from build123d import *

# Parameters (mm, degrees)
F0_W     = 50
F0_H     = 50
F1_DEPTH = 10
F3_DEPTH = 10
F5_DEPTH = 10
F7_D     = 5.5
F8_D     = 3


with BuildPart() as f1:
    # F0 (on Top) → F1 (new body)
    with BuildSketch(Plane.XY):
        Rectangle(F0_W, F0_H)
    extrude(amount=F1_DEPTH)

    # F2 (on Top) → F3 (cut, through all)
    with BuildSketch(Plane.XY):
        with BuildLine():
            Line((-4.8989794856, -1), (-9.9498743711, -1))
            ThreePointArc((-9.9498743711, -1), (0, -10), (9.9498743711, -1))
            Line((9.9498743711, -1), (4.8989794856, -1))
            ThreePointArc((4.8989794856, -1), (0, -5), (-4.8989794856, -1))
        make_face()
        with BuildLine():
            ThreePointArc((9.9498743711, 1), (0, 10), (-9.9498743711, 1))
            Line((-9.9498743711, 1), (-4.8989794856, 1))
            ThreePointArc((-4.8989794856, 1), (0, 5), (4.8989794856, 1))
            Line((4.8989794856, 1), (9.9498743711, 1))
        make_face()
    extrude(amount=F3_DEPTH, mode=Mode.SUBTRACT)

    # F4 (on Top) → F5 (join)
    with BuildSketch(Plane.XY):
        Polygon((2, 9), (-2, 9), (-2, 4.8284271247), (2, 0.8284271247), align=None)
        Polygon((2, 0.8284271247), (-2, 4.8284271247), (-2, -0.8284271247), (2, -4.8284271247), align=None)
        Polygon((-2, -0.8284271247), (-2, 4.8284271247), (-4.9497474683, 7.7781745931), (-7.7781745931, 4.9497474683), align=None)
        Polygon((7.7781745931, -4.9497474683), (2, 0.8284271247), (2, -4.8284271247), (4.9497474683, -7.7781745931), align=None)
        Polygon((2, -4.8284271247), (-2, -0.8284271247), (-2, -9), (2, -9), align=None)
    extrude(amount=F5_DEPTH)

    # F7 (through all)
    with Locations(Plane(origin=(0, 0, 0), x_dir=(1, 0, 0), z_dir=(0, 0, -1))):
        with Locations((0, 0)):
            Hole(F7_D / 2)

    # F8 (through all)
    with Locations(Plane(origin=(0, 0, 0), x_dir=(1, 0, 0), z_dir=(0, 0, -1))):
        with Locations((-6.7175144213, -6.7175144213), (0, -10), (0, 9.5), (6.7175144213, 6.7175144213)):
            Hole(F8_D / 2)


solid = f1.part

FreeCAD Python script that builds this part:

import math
import FreeCAD as App
import Part
import Sketcher
Q = App.Units.Quantity

doc = App.newDocument("Part")
body = doc.addObject("PartDesign::Body", "Body")

# Sketch on XY plane
sketch1 = body.newObject("Sketcher::SketchObject", "Sketch")
sketch1.AttachmentSupport = (doc.getObject("XY_Plane"), [""])
sketch1.MapMode = "FlatFace"
sketch1.addGeometry(Part.LineSegment(App.Vector(-25, 25, 0), App.Vector(-25, -25, 0)), False)
sketch1.addGeometry(Part.LineSegment(App.Vector(-25, -25, 0), App.Vector(25, -25, 0)), False)
sketch1.addGeometry(Part.LineSegment(App.Vector(25, -25, 0), App.Vector(25, 25, 0)), False)
sketch1.addGeometry(Part.LineSegment(App.Vector(25, 25, 0), App.Vector(-25, 25, 0)), False)
sketch1.addConstraint(Sketcher.Constraint("Coincident", 0, 2, 1, 1))
sketch1.addConstraint(Sketcher.Constraint("Coincident", 1, 2, 2, 1))
sketch1.addConstraint(Sketcher.Constraint("Coincident", 2, 2, 3, 1))
sketch1.addConstraint(Sketcher.Constraint("Coincident", 3, 2, 0, 1))
sketch1.addConstraint(Sketcher.Constraint("Vertical", 0))
sketch1.addConstraint(Sketcher.Constraint("Horizontal", 1))
sketch1.addConstraint(Sketcher.Constraint("Vertical", 2))
sketch1.addConstraint(Sketcher.Constraint("Horizontal", 3))
sketch1.addConstraint(Sketcher.Constraint("Symmetric", 0, 2, 2, 2, -1, 1))
sketch1.addConstraint(Sketcher.Constraint("Equal", 3, 0))
sketch1.addConstraint(Sketcher.Constraint("DistanceX", 1, 1, 1, 2, 50.0))
pad1 = body.newObject("PartDesign::Pad", "Pad")
pad1.Profile = sketch1
pad1.Length = 10

# Sketch on XY plane
sketch2 = body.newObject("Sketcher::SketchObject", "Sketch001")
sketch2.AttachmentSupport = (doc.getObject("XY_Plane"), [""])
sketch2.MapMode = "FlatFace"
sketch2.addGeometry(Part.LineSegment(App.Vector(-5, -1, 0), App.Vector(-10, -1, 0)), False)
sketch2.addGeometry(Part.ArcOfCircle(Part.Circle(App.Vector(0, 0, 0), App.Vector(0, 0, 1), 10), math.radians(-174), math.radians(-6)), False)
sketch2.addGeometry(Part.LineSegment(App.Vector(10, -1, 0), App.Vector(5, -1, 0)), False)
sketch2.addGeometry(Part.ArcOfCircle(Part.Circle(App.Vector(0, 0, 0), App.Vector(0, 0, 1), 5), math.radians(-168), math.radians(-12)), False)
sketch2.addGeometry(Part.ArcOfCircle(Part.Circle(App.Vector(0, 0, 0), App.Vector(0, 0, 1), 10), math.radians(6), math.radians(174)), False)
sketch2.addGeometry(Part.LineSegment(App.Vector(-10, 1, 0), App.Vector(-5, 1, 0)), False)
sketch2.addGeometry(Part.ArcOfCircle(Part.Circle(App.Vector(0, 0, 0), App.Vector(0, 0, 1), 5), math.radians(12), math.radians(168)), False)
sketch2.addGeometry(Part.LineSegment(App.Vector(5, 1, 0), App.Vector(10, 1, 0)), False)
sketch2.addConstraint(Sketcher.Constraint("Coincident", 0, 2, 1, 1))
sketch2.addConstraint(Sketcher.Constraint("Coincident", 1, 2, 2, 1))
sketch2.addConstraint(Sketcher.Constraint("Coincident", 2, 2, 3, 2))
sketch2.addConstraint(Sketcher.Constraint("Coincident", 3, 1, 0, 1))
sketch2.addConstraint(Sketcher.Constraint("Coincident", 4, 2, 5, 1))
sketch2.addConstraint(Sketcher.Constraint("Coincident", 5, 2, 6, 2))
sketch2.addConstraint(Sketcher.Constraint("Coincident", 6, 1, 7, 1))
sketch2.addConstraint(Sketcher.Constraint("Coincident", 7, 2, 4, 1))
sketch2.addConstraint(Sketcher.Constraint("Horizontal", 0))
sketch2.addConstraint(Sketcher.Constraint("Horizontal", 2))
sketch2.addConstraint(Sketcher.Constraint("Horizontal", 5))
sketch2.addConstraint(Sketcher.Constraint("Horizontal", 7))
sketch2.addConstraint(Sketcher.Constraint("Coincident", 1, 3, -1, 1))
sketch2.addConstraint(Sketcher.Constraint("Coincident", 3, 3, -1, 1))
sketch2.addConstraint(Sketcher.Constraint("Coincident", 4, 3, -1, 1))
sketch2.addConstraint(Sketcher.Constraint("Coincident", 6, 3, -1, 1))
sketch2.addConstraint(Sketcher.Constraint("Equal", 1, 4))
sketch2.addConstraint(Sketcher.Constraint("Equal", 3, 6))
sketch2.addConstraint(Sketcher.Constraint("Horizontal", 0, 2, 1, 2))
sketch2.addConstraint(Sketcher.Constraint("Horizontal", 5, 2, 6, 1))
sketch2.addConstraint(Sketcher.Constraint("Vertical", 0, 2, 4, 2))
sketch2.addConstraint(Sketcher.Constraint("Radius", 1, 10.0))
sketch2.addConstraint(Sketcher.Constraint("Radius", 3, 5.0))
sketch2.addConstraint(Sketcher.Constraint("DistanceY", 0, 2, -1, 1, 1.0))
pocket1 = body.newObject("PartDesign::Pocket", "Pocket")
pocket1.Profile = sketch2
pocket1.Type = "ThroughAll"
pocket1.Reversed = True

# Sketch on XY plane
sketch3 = body.newObject("Sketcher::SketchObject", "Sketch002")
sketch3.AttachmentSupport = (doc.getObject("XY_Plane"), [""])
sketch3.MapMode = "FlatFace"
sketch3.addGeometry(Part.LineSegment(App.Vector(2, 9, 0), App.Vector(-2, 9, 0)), False)
sketch3.addGeometry(Part.LineSegment(App.Vector(-2, 9, 0), App.Vector(-2, 4.8, 0)), False)
sketch3.addGeometry(Part.LineSegment(App.Vector(-2, 4.8, 0), App.Vector(-4.9, 7.8, 0)), False)
sketch3.addGeometry(Part.LineSegment(App.Vector(-4.9, 7.8, 0), App.Vector(-7.8, 4.9, 0)), False)
sketch3.addGeometry(Part.LineSegment(App.Vector(-7.8, 4.9, 0), App.Vector(-2, -0.8, 0)), False)
sketch3.addGeometry(Part.LineSegment(App.Vector(-2, -0.8, 0), App.Vector(-2, -9, 0)), False)
sketch3.addGeometry(Part.LineSegment(App.Vector(-2, -9, 0), App.Vector(2, -9, 0)), False)
sketch3.addGeometry(Part.LineSegment(App.Vector(2, -9, 0), App.Vector(2, -4.8, 0)), False)
sketch3.addGeometry(Part.LineSegment(App.Vector(2, -4.8, 0), App.Vector(4.9, -7.8, 0)), False)
sketch3.addGeometry(Part.LineSegment(App.Vector(4.9, -7.8, 0), App.Vector(7.8, -4.9, 0)), False)
sketch3.addGeometry(Part.LineSegment(App.Vector(7.8, -4.9, 0), App.Vector(2, 0.8, 0)), False)
sketch3.addGeometry(Part.LineSegment(App.Vector(2, 0.8, 0), App.Vector(2, 9, 0)), False)
sketch3.addConstraint(Sketcher.Constraint("Coincident", 0, 2, 1, 1))
sketch3.addConstraint(Sketcher.Constraint("Coincident", 1, 2, 2, 1))
sketch3.addConstraint(Sketcher.Constraint("Coincident", 2, 2, 3, 1))
sketch3.addConstraint(Sketcher.Constraint("Coincident", 3, 2, 4, 1))
sketch3.addConstraint(Sketcher.Constraint("Coincident", 4, 2, 5, 1))
sketch3.addConstraint(Sketcher.Constraint("Coincident", 5, 2, 6, 1))
sketch3.addConstraint(Sketcher.Constraint("Coincident", 6, 2, 7, 1))
sketch3.addConstraint(Sketcher.Constraint("Coincident", 7, 2, 8, 1))
sketch3.addConstraint(Sketcher.Constraint("Coincident", 8, 2, 9, 1))
sketch3.addConstraint(Sketcher.Constraint("Coincident", 9, 2, 10, 1))
sketch3.addConstraint(Sketcher.Constraint("Coincident", 10, 2, 11, 1))
sketch3.addConstraint(Sketcher.Constraint("Coincident", 11, 2, 0, 1))
sketch3.addConstraint(Sketcher.Constraint("Horizontal", 0))
sketch3.addConstraint(Sketcher.Constraint("Vertical", 1))
sketch3.addConstraint(Sketcher.Constraint("Vertical", 5))
sketch3.addConstraint(Sketcher.Constraint("Horizontal", 6))
sketch3.addConstraint(Sketcher.Constraint("Vertical", 7))
sketch3.addConstraint(Sketcher.Constraint("Vertical", 11))
sketch3.addConstraint(Sketcher.Constraint("Symmetric", 0, 2, 6, 2, -1, 1))
sketch3.addConstraint(Sketcher.Constraint("Symmetric", 2, 2, 8, 2, -1, 1))
sketch3.addConstraint(Sketcher.Constraint("Symmetric", 3, 2, 9, 2, -1, 1))
sketch3.addConstraint(Sketcher.Constraint("Symmetric", 4, 2, 10, 2, -1, 1))
sketch3.addConstraint(Sketcher.Constraint("Perpendicular", 2, 3))
sketch3.addConstraint(Sketcher.Constraint("Perpendicular", 3, 4))
sketch3.addConstraint(Sketcher.Constraint("Parallel", 4, 8))
sketch3.addConstraint(Sketcher.Constraint("Vertical", 1, 2, 4, 2))
sketch3.addConstraint(Sketcher.Constraint("DistanceX", 0, 2, 0, 1, 4.0))
sketch3.addConstraint(Sketcher.Constraint("Angle", 2, Q("135 deg")))
sketch3.addConstraint(Sketcher.Constraint("Distance", 3, 4.0))
sketch3.addConstraint(Sketcher.Constraint("DistanceY", -1, 1, 0, 2, 9.0))
sketch3.addConstraint(Sketcher.Constraint("DistanceY", 7, 2, 4, 2, 4.0))
sketch3.addConstraint(Sketcher.Constraint("DistanceY", 4, 2, 2, 2, 8.606602))
pad2 = body.newObject("PartDesign::Pad", "Pad001")
pad2.Profile = sketch3
pad2.Length = 10

# Sketch on XY plane
sketch4 = body.newObject("Sketcher::SketchObject", "Sketch003")
sketch4.AttachmentSupport = (doc.getObject("XY_Plane"), [""])
sketch4.MapMode = "FlatFace"
sketch4.addGeometry(Part.Circle(App.Vector(0, 0, 0), App.Vector(0, 0, 1), 2.8), False)
sketch4.addConstraint(Sketcher.Constraint("Coincident", 0, 3, -1, 1))
sketch4.addConstraint(Sketcher.Constraint("Diameter", 0, 5.5))
doc.recompute()
hole = body.newObject("PartDesign::Hole", "Hole")
hole.Profile = sketch4
hole.ThreadType = "None"
hole.Diameter = 5.5
hole.DepthType = "ThroughAll"
hole.Reversed = True

# Sketch on XY plane
sketch5 = body.newObject("Sketcher::SketchObject", "Sketch004")
sketch5.AttachmentSupport = (doc.getObject("XY_Plane"), [""])
sketch5.MapMode = "FlatFace"
sketch5.addGeometry(Part.Circle(App.Vector(-6.7, 6.7, 0), App.Vector(0, 0, 1), 1.5), False)
sketch5.addGeometry(Part.Circle(App.Vector(0, 10, 0), App.Vector(0, 0, 1), 1.5), False)
sketch5.addGeometry(Part.Circle(App.Vector(0, -9.5, 0), App.Vector(0, 0, 1), 1.5), False)
sketch5.addGeometry(Part.Circle(App.Vector(6.7, -6.7, 0), App.Vector(0, 0, 1), 1.5), False)
sketch5.addConstraint(Sketcher.Constraint("Equal", 0, 1))
sketch5.addConstraint(Sketcher.Constraint("Equal", 1, 2))
sketch5.addConstraint(Sketcher.Constraint("Equal", 2, 3))
sketch5.addConstraint(Sketcher.Constraint("Symmetric", 0, 3, 3, 3, -1, 1))
sketch5.addConstraint(Sketcher.Constraint("PointOnObject", 1, 3, -2))
sketch5.addConstraint(Sketcher.Constraint("PointOnObject", 2, 3, -2))
sketch5.addConstraint(Sketcher.Constraint("Diameter", 0, 3.0))
sketch5.addConstraint(Sketcher.Constraint("DistanceY", -1, 1, 1, 3, 10.0))
sketch5.addConstraint(Sketcher.Constraint("DistanceY", 2, 3, -1, 1, 9.5))
sketch5.addConstraint(Sketcher.Constraint("DistanceX", 0, 3, 3, 3, 13.435029))
sketch5.addConstraint(Sketcher.Constraint("DistanceY", 3, 3, 0, 3, 13.435029))
doc.recompute()
hole2 = body.newObject("PartDesign::Hole", "Hole001")
hole2.Profile = sketch5
hole2.ThreadType = "None"
hole2.Diameter = 3
hole2.DepthType = "ThroughAll"
hole2.Reversed = True

doc.recompute()
